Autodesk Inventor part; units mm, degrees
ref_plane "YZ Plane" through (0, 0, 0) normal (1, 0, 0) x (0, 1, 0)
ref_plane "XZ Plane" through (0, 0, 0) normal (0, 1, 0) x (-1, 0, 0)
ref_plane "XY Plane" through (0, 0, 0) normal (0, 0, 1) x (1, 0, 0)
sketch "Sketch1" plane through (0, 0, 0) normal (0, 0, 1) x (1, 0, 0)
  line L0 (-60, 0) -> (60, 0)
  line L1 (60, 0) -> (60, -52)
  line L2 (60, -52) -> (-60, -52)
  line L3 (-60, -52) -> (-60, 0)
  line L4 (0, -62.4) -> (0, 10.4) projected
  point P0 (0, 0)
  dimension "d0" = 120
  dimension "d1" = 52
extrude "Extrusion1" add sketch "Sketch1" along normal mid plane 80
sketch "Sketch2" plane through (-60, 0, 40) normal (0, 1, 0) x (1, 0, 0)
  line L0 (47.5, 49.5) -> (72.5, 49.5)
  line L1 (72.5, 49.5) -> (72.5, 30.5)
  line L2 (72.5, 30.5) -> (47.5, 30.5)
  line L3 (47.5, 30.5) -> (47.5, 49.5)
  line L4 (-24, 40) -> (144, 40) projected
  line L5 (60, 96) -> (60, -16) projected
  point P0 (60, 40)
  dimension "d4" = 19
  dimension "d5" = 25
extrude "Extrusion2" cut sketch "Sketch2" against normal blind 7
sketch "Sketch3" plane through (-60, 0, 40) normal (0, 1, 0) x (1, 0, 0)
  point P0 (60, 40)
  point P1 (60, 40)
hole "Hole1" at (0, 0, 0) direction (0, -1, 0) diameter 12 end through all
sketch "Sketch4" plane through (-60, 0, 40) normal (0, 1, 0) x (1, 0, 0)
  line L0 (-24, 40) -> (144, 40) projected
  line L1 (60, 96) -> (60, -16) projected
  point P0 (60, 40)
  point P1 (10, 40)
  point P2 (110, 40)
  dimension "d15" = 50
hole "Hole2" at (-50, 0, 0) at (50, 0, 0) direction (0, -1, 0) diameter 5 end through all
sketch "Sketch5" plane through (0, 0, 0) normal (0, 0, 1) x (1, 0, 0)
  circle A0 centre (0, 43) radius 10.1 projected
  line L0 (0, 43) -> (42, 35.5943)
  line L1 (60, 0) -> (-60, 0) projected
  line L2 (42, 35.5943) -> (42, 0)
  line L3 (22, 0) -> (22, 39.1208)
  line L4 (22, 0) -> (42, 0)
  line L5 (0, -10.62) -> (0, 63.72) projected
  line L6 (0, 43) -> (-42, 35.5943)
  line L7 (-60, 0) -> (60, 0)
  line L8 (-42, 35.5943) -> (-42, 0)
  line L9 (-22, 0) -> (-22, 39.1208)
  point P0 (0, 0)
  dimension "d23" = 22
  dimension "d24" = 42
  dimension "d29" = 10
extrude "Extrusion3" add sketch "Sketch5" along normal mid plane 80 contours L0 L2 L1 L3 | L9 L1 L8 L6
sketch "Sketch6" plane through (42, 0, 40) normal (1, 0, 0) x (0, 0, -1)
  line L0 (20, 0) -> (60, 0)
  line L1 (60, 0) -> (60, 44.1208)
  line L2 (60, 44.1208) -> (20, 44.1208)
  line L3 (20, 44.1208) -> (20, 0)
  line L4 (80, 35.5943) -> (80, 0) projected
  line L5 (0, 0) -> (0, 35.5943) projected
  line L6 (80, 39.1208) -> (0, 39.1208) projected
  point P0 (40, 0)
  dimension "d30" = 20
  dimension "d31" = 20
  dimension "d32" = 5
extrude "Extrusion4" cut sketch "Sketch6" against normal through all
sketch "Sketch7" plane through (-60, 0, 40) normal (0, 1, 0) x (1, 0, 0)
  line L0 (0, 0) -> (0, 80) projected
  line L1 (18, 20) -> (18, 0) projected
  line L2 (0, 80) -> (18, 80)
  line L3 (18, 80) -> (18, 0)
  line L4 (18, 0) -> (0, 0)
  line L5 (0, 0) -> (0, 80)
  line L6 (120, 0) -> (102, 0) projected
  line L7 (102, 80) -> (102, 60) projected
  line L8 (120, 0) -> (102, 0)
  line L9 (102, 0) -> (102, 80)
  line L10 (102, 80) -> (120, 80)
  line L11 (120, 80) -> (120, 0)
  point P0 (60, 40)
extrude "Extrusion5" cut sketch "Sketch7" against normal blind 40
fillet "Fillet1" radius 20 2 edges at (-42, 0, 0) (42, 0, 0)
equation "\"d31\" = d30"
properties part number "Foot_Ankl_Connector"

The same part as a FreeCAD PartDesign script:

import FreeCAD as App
import Part
import Sketcher
from FreeCAD import Vector
Q = App.Units.Quantity


def edges_at(feature, points):
    """Names of the edges that pass closest to the given points."""
    edges = feature.Shape.Edges
    near = lambda p: min(range(len(edges)), key=lambda i: edges[i].distToShape(Part.Vertex(*p))[0])
    return sorted({f"Edge{near(p) + 1}" for p in points})


def add_polygon(sketch, points):
    """Adds a closed chain of lines whose ends are joined by coincident constraints."""
    first, n = sketch.GeometryCount, len(points)
    for a, b in zip(points, points[1:] + points[:1]):
        sketch.addGeometry(Part.LineSegment(App.Vector(*a, 0), App.Vector(*b, 0)), False)
    for i in range(n):
        sketch.addConstraint(Sketcher.Constraint("Coincident", first + i, 2, first + (i + 1) % n, 1))

doc = App.newDocument("Part")
params = doc.addObject("Spreadsheet::Sheet", "Params")
for row, (alias, value) in enumerate([
    ("sketch1_width", "120 mm"),
    ("sketch1_height", "52 mm"),
    ("pad1_length", "80 mm"),
    ("sketch2_width", "25 mm"),
    ("sketch2_height", "19 mm"),
    ("pocket1_length", "7 mm"),
    ("sketch3_diameter", "12 mm"),
    ("hole_diameter", "12 mm"),
    ("sketch4_diameter", "5 mm"),
    ("hole2_diameter", "5 mm"),
    ("pad2_length", "80 mm"),
    ("sketch7_width", "18 mm"),
    ("sketch7_height", "80 mm"),
    ("pocket3_length", "40 mm"),
    ("fillet_radius", "20 mm"),
], start=1):
    params.set(f"A{row}", alias)
    params.set(f"B{row}", "=" + value)
    params.setAlias(f"B{row}", alias)

body = doc.addObject("PartDesign::Body", "Body")

# Sketch on XY plane
sketch1 = doc.addObject("Sketcher::SketchObject", "Sketch")
body.addObject(sketch1)
sketch1.AttachmentSupport = (doc.XY_Plane, [""])
sketch1.MapMode = "FlatFace"
add_polygon(sketch1, [(-60, 0), (-60, -52), (60, -52), (60, 0)])  # lines 0-3
sketch1.addConstraint(Sketcher.Constraint("Vertical", 0))
sketch1.addConstraint(Sketcher.Constraint("Horizontal", 1))
sketch1.addConstraint(Sketcher.Constraint("Vertical", 2))
sketch1.addConstraint(Sketcher.Constraint("Horizontal", 3))
sketch1.addConstraint(Sketcher.Constraint("Symmetric", 2, 2, 3, 2, -1, 1))
sketch1.addConstraint(Sketcher.Constraint("DistanceX", 1, 1, 1, 2, Q("120 mm")))
sketch1.addConstraint(Sketcher.Constraint("DistanceY", 0, 2, 0, 1, Q("52 mm")))
sketch1.setExpression("Constraints[9]", "Params.sketch1_width")
sketch1.setExpression("Constraints[10]", "Params.sketch1_height")
pad1 = doc.addObject("PartDesign::Pad", "Pad")
body.addObject(pad1)
pad1.Profile = sketch1
pad1.setExpression("Length", "Params.pad1_length")
pad1.Midplane = True

# Sketch on XZ plane
sketch2 = doc.addObject("Sketcher::SketchObject", "Sketch001")
body.addObject(sketch2)
sketch2.AttachmentSupport = (doc.XZ_Plane, [""])
sketch2.MapMode = "FlatFace"
add_polygon(sketch2, [(-12, -10), (-12, 10), (12, 10), (12, -10)])  # lines 0-3
sketch2.addConstraint(Sketcher.Constraint("Vertical", 0))
sketch2.addConstraint(Sketcher.Constraint("Horizontal", 1))
sketch2.addConstraint(Sketcher.Constraint("Vertical", 2))
sketch2.addConstraint(Sketcher.Constraint("Horizontal", 3))
sketch2.addConstraint(Sketcher.Constraint("Symmetric", 0, 2, 2, 2, -1, 1))
sketch2.addConstraint(Sketcher.Constraint("DistanceX", 1, 1, 1, 2, Q("25 mm")))
sketch2.addConstraint(Sketcher.Constraint("DistanceY", 0, 1, 0, 2, Q("19 mm")))
sketch2.setExpression("Constraints[9]", "Params.sketch2_width")
sketch2.setExpression("Constraints[10]", "Params.sketch2_height")
pocket1 = doc.addObject("PartDesign::Pocket", "Pocket")
body.addObject(pocket1)
pocket1.Profile = sketch2
pocket1.setExpression("Length", "Params.pocket1_length")
pocket1.Reversed = True

# Sketch on XZ plane
sketch3 = doc.addObject("Sketcher::SketchObject", "Sketch002")
body.addObject(sketch3)
sketch3.AttachmentSupport = (doc.XZ_Plane, [""])
sketch3.MapMode = "FlatFace"
sketch3.addGeometry(Part.Circle(Vector(0, 0, 0), Vector(0, 0, 1), 6), False)
sketch3.addConstraint(Sketcher.Constraint("Coincident", 0, 3, -1, 1))
sketch3.addConstraint(Sketcher.Constraint("Diameter", 0, Q("12 mm")))
sketch3.setExpression("Constraints[1]", "Params.sketch3_diameter")
doc.recompute()
hole = doc.addObject("PartDesign::Hole", "Hole")
body.addObject(hole)
hole.Profile = sketch3
hole.ThreadType = "None"
hole.setExpression("Diameter", "Params.hole_diameter")
hole.DepthType = "ThroughAll"
hole.Reversed = True

# Sketch on XZ plane
sketch4 = doc.addObject("Sketcher::SketchObject", "Sketch003")
body.addObject(sketch4)
sketch4.AttachmentSupport = (doc.XZ_Plane, [""])
sketch4.MapMode = "FlatFace"
sketch4.addGeometry(Part.Circle(Vector(-50, 0, 0), Vector(0, 0, 1), 2.5), False)
sketch4.addGeometry(Part.Circle(Vector(50, 0, 0), Vector(0, 0, 1), 2.5), False)
sketch4.addConstraint(Sketcher.Constraint("Equal", 0, 1))
sketch4.addConstraint(Sketcher.Constraint("Symmetric", 0, 3, 1, 3, -1, 1))
sketch4.addConstraint(Sketcher.Constraint("PointOnObject", 0, 3, -1))
sketch4.addConstraint(Sketcher.Constraint("Diameter", 0, Q("5 mm")))
sketch4.addConstraint(Sketcher.Constraint("DistanceX", 0, 3, -1, 1, Q("50 mm")))
sketch4.setExpression("Constraints[3]", "Params.sketch4_diameter")
doc.recompute()
hole2 = doc.addObject("PartDesign::Hole", "Hole001")
body.addObject(hole2)
hole2.Profile = sketch4
hole2.ThreadType = "None"
hole2.setExpression("Diameter", "Params.hole2_diameter")
hole2.DepthType = "ThroughAll"
hole2.Reversed = True

# Sketch on XY plane
sketch5 = doc.addObject("Sketcher::SketchObject", "Sketch004")
body.addObject(sketch5)
sketch5.AttachmentSupport = (doc.XY_Plane, [""])
sketch5.MapMode = "FlatFace"
add_polygon(sketch5, [(42, 36), (22, 39), (22, 0), (42, 0)])  # lines 0-3
add_polygon(sketch5, [(-22, 0), (-22, 39), (-42, 36), (-42, 0)])  # lines 4-7
sketch5.addConstraint(Sketcher.Constraint("Vertical", 1))
sketch5.addConstraint(Sketcher.Constraint("Horizontal", 2))
sketch5.addConstraint(Sketcher.Constraint("Vertical", 3))
sketch5.addConstraint(Sketcher.Constraint("Vertical", 4))
sketch5.addConstraint(Sketcher.Constraint("Vertical", 6))
sketch5.addConstraint(Sketcher.Constraint("Horizontal", 7))
sketch5.addConstraint(Sketcher.Constraint("Symmetric", 2, 2, 6, 2, -1, 1))
sketch5.addConstraint(Sketcher.Constraint("Symmetric", 0, 2, 4, 2, -2))
sketch5.addConstraint(Sketcher.Constraint("PointOnObject", 1, 2, -1))
sketch5.addConstraint(Sketcher.Constraint("Horizontal", 3, 2, 5, 2))
sketch5.addConstraint(Sketcher.Constraint("DistanceX", -1, 1, 0, 2, Q("22 mm")))
sketch5.addConstraint(Sketcher.Constraint("DistanceX", -1, 1, 2, 2, Q("42 mm")))
sketch5.addConstraint(Sketcher.Constraint("Angle", 0, Q("170 deg")))
sketch5.addConstraint(Sketcher.Constraint("DistanceY", 1, 2, 1, 1, Q("39.1208 mm")))
pad2 = doc.addObject("PartDesign::Pad", "Pad001")
body.addObject(pad2)
pad2.Profile = sketch5
pad2.setExpression("Length", "Params.pad2_length")
pad2.Midplane = True

# Sketch on YZ plane
sketch6 = doc.addObject("Sketcher::SketchObject", "Sketch005")
body.addObject(sketch6)
sketch6.AttachmentSupport = (doc.YZ_Plane, [""])
sketch6.MapMode = "FlatFace"
sketch6.AttachmentOffset = App.Placement(Vector(0, 0, 42), App.Rotation())
add_polygon(sketch6, [(0, 20), (0, -20), (44, -20), (44, 20)])  # lines 0-3
sketch6.addConstraint(Sketcher.Constraint("Vertical", 0))
sketch6.addConstraint(Sketcher.Constraint("Horizontal", 1))
sketch6.addConstraint(Sketcher.Constraint("Vertical", 2))
sketch6.addConstraint(Sketcher.Constraint("Horizontal", 3))
sketch6.addConstraint(Sketcher.Constraint("Symmetric", 0, 2, 3, 2, -1, 1))
sketch6.addConstraint(Sketcher.Constraint("DistanceY", 0, 2, -1, 1, Q("20 mm")))
sketch6.addConstraint(Sketcher.Constraint("DistanceX", 1, 1, 1, 2, Q("44.1208 mm")))
pocket2 = doc.addObject("PartDesign::Pocket", "Pocket001")
body.addObject(pocket2)
pocket2.Profile = sketch6
pocket2.Type = "ThroughAll"

# Sketch on XZ plane
sketch7 = doc.addObject("Sketcher::SketchObject", "Sketch006")
body.addObject(sketch7)
sketch7.AttachmentSupport = (doc.XZ_Plane, [""])
sketch7.MapMode = "FlatFace"
add_polygon(sketch7, [(-60, -40), (-60, 40), (-42, 40), (-42, -40)])  # lines 0-3
add_polygon(sketch7, [(42, 40), (60, 40), (60, -40), (42, -40)])  # lines 4-7
sketch7.addConstraint(Sketcher.Constraint("Vertical", 0))
sketch7.addConstraint(Sketcher.Constraint("Horizontal", 1))
sketch7.addConstraint(Sketcher.Constraint("Vertical", 2))
sketch7.addConstraint(Sketcher.Constraint("Horizontal", 3))
sketch7.addConstraint(Sketcher.Constraint("Horizontal", 4))
sketch7.addConstraint(Sketcher.Constraint("Vertical", 5))
sketch7.addConstraint(Sketcher.Constraint("Horizontal", 6))
sketch7.addConstraint(Sketcher.Constraint("Vertical", 7))
sketch7.addConstraint(Sketcher.Constraint("Symmetric", 3, 2, 4, 2, -1, 1))
sketch7.addConstraint(Sketcher.Constraint("Symmetric", 1, 2, 6, 2, -1, 1))
sketch7.addConstraint(Sketcher.Constraint("Horizontal", 1, 2, 4, 2))
sketch7.addConstraint(Sketcher.Constraint("DistanceX", 1, 1, 1, 2, Q("18 mm")))
sketch7.addConstraint(Sketcher.Constraint("DistanceY", 0, 1, 0, 2, Q("80 mm")))
sketch7.addConstraint(Sketcher.Constraint("DistanceX", 0, 2, -1, 1, Q("60 mm")))
sketch7.setExpression("Constraints[19]", "Params.sketch7_width")
sketch7.setExpression("Constraints[20]", "Params.sketch7_height")
pocket3 = doc.addObject("PartDesign::Pocket", "Pocket002")
body.addObject(pocket3)
pocket3.Profile = sketch7
pocket3.setExpression("Length", "Params.pocket3_length")
pocket3.Reversed = True
doc.recompute()

fillet = doc.addObject("PartDesign::Fillet", "Fillet")
body.addObject(fillet)
fillet.Base = (pocket3, edges_at(pocket3, [(-42, 0, 0), (42, 0, 0)]))
fillet.setExpression("Radius", "Params.fillet_radius")

doc.recompute()
